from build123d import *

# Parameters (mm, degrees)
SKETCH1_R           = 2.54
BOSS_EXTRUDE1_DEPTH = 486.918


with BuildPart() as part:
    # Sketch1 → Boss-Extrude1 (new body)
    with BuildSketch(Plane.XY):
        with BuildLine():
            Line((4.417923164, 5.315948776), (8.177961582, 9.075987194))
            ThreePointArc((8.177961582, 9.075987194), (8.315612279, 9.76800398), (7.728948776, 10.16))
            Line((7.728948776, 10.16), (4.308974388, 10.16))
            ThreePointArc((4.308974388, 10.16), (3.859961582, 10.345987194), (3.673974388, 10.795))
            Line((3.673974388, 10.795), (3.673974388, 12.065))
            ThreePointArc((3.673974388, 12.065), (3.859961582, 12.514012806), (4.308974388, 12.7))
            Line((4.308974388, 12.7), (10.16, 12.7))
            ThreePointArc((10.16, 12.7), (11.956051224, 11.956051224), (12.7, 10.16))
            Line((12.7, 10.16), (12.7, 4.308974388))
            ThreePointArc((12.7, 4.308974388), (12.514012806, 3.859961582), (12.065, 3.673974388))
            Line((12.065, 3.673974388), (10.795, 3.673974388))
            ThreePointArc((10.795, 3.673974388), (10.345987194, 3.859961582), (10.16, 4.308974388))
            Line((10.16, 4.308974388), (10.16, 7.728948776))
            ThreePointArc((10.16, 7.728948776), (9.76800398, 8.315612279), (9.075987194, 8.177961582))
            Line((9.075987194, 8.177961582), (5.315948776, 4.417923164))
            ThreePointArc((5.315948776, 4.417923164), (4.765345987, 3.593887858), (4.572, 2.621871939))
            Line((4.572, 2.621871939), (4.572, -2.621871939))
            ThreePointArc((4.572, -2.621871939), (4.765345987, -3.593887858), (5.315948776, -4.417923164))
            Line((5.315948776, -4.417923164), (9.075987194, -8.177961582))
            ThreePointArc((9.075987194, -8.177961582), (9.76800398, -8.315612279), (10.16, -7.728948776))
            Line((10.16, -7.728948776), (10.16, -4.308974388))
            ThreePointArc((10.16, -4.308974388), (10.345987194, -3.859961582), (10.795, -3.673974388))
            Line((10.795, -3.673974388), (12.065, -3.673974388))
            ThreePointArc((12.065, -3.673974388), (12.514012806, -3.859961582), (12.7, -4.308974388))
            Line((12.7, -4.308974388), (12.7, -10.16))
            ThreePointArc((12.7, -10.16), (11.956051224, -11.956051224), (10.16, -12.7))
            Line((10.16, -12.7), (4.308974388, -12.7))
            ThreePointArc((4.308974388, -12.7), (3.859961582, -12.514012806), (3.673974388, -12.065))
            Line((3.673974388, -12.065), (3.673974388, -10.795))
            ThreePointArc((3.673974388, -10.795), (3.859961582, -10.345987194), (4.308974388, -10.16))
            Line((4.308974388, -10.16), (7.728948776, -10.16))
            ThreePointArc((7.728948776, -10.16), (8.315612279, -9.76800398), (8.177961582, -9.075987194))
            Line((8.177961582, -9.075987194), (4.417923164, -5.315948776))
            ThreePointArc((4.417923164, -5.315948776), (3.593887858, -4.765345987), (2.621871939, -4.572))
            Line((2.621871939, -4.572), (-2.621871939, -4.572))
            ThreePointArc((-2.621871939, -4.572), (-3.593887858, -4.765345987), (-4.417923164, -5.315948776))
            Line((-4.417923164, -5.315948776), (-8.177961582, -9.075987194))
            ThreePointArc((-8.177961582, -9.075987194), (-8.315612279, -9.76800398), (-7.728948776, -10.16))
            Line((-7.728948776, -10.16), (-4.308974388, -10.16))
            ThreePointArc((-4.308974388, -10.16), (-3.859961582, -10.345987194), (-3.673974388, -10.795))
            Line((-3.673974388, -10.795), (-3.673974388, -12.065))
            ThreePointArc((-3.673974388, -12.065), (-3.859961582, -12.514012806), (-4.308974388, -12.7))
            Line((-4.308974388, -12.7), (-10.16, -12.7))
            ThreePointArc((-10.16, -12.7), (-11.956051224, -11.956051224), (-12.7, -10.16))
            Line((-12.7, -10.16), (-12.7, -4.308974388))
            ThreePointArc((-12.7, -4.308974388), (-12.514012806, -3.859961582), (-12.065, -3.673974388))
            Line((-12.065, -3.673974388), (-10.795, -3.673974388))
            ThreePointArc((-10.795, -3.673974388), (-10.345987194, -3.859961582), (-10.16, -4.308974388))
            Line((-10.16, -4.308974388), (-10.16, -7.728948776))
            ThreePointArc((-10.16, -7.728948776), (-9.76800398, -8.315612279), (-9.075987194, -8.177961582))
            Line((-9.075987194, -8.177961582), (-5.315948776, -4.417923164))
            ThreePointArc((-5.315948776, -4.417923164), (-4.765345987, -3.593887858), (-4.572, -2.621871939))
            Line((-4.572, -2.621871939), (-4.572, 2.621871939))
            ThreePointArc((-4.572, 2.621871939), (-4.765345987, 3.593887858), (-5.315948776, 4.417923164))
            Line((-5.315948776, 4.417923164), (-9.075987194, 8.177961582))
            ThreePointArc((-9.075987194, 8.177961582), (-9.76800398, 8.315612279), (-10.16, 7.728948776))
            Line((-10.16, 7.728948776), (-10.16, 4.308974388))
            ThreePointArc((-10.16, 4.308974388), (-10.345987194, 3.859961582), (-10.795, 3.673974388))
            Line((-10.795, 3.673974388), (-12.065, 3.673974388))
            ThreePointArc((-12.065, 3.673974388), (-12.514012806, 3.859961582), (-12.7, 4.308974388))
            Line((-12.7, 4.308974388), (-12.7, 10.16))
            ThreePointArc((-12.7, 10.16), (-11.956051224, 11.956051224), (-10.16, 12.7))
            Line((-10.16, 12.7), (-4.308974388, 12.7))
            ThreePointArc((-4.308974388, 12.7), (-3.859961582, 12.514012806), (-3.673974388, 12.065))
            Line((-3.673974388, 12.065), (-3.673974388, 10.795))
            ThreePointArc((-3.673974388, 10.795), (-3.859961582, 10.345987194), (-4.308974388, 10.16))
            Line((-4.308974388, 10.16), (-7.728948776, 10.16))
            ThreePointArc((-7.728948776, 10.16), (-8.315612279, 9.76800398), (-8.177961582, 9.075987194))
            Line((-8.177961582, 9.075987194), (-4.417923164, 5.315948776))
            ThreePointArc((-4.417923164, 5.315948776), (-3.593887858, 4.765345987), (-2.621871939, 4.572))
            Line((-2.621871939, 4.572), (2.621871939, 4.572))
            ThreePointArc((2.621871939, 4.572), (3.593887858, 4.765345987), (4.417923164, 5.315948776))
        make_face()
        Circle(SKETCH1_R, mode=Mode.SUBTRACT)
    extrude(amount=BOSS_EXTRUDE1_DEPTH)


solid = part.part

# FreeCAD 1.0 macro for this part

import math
import FreeCAD as App
import Part
import Sketcher

V = App.Vector
Q = App.Units.Quantity

doc = App.newDocument("Part")
body = doc.addObject("PartDesign::Body", "Body")

sketch1 = body.newObject("Sketcher::SketchObject", "Sketch")
sketch1.AttachmentSupport = (doc.getObject("XY_Plane"), [""])
sketch1.MapMode = "FlatFace"
sketch1.addGeometry(Part.LineSegment(V(8.2, 9.1, 0), V(4.4, 5.3, 0)), False)
sketch1.addGeometry(Part.ArcOfCircle(Part.Circle(V(2.6, 7.1, 0), V(0, 0, 1), 2.5), math.radians(-90), math.radians(-45)), False)
sketch1.addGeometry(Part.LineSegment(V(2.6, 4.6, 0), V(-2.6, 4.6, 0)), False)
sketch1.addGeometry(Part.ArcOfCircle(Part.Circle(V(-2.6, 7.1, 0), V(0, 0, 1), 2.5), math.radians(-135), math.radians(-90)), False)
sketch1.addGeometry(Part.LineSegment(V(-4.4, 5.3, 0), V(-8.2, 9.1, 0)), False)
sketch1.addGeometry(Part.ArcOfCircle(Part.Circle(V(-7.7, 9.5, 0), V(0, 0, 1), 0.6), math.radians(90), math.radians(225)), False)
sketch1.addGeometry(Part.LineSegment(V(-7.7, 10.2, 0), V(-4.3, 10.2, 0)), False)
sketch1.addGeometry(Part.ArcOfCircle(Part.Circle(V(-4.3, 10.8, 0), V(0, 0, 1), 0.6), math.radians(-90), math.radians(0)), False)
sketch1.addGeometry(Part.LineSegment(V(-3.7, 10.8, 0), V(-3.7, 12.1, 0)), False)
sketch1.addGeometry(Part.ArcOfCircle(Part.Circle(V(-4.3, 12.1, 0), V(0, 0, 1), 0.6), math.radians(0), math.radians(90)), False)
sketch1.addGeometry(Part.LineSegment(V(-4.3, 12.7, 0), V(-10.2, 12.7, 0)), False)
sketch1.addGeometry(Part.ArcOfCircle(Part.Circle(V(-10.2, 10.2, 0), V(0, 0, 1), 2.5), math.radians(90), math.radians(180)), False)
sketch1.addGeometry(Part.LineSegment(V(-12.7, 10.2, 0), V(-12.7, 4.3, 0)), False)
sketch1.addGeometry(Part.ArcOfCircle(Part.Circle(V(-12.1, 4.3, 0), V(0, 0, 1), 0.6), math.radians(180), math.radians(270)), False)
sketch1.addGeometry(Part.LineSegment(V(-12.1, 3.7, 0), V(-10.8, 3.7, 0)), False)
sketch1.addGeometry(Part.ArcOfCircle(Part.Circle(V(-10.8, 4.3, 0), V(0, 0, 1), 0.6), math.radians(-90), math.radians(0)), False)
sketch1.addGeometry(Part.LineSegment(V(-10.2, 4.3, 0), V(-10.2, 7.7, 0)), False)
sketch1.addGeometry(Part.ArcOfCircle(Part.Circle(V(-9.5, 7.7, 0), V(0, 0, 1), 0.6), math.radians(45), math.radians(180)), False)
sketch1.addGeometry(Part.LineSegment(V(-9.1, 8.2, 0), V(-5.3, 4.4, 0)), False)
sketch1.addGeometry(Part.ArcOfCircle(Part.Circle(V(-7.1, 2.6, 0), V(0, 0, 1), 2.5), math.radians(0), math.radians(45)), False)
sketch1.addGeometry(Part.LineSegment(V(-4.6, 2.6, 0), V(-4.6, -2.6, 0)), False)
sketch1.addGeometry(Part.ArcOfCircle(Part.Circle(V(-7.1, -2.6, 0), V(0, 0, 1), 2.5), math.radians(-45), math.radians(0)), False)
sketch1.addGeometry(Part.LineSegment(V(-5.3, -4.4, 0), V(-9.1, -8.2, 0)), False)
sketch1.addGeometry(Part.ArcOfCircle(Part.Circle(V(-9.5, -7.7, 0), V(0, 0, 1), 0.6), math.radians(180), math.radians(315)), False)
sketch1.addGeometry(Part.LineSegment(V(-10.2, -7.7, 0), V(-10.2, -4.3, 0)), False)
sketch1.addGeometry(Part.ArcOfCircle(Part.Circle(V(-10.8, -4.3, 0), V(0, 0, 1), 0.6), math.radians(0), math.radians(90)), False)
sketch1.addGeometry(Part.LineSegment(V(-10.8, -3.7, 0), V(-12.1, -3.7, 0)), False)
sketch1.addGeometry(Part.ArcOfCircle(Part.Circle(V(-12.1, -4.3, 0), V(0, 0, 1), 0.6), math.radians(90), math.radians(180)), False)
sketch1.addGeometry(Part.LineSegment(V(-12.7, -4.3, 0), V(-12.7, -10.2, 0)), False)
sketch1.addGeometry(Part.ArcOfCircle(Part.Circle(V(-10.2, -10.2, 0), V(0, 0, 1), 2.5), math.radians(-180), math.radians(-90)), False)
sketch1.addGeometry(Part.LineSegment(V(-10.2, -12.7, 0), V(-4.3, -12.7, 0)), False)
sketch1.addGeometry(Part.ArcOfCircle(Part.Circle(V(-4.3, -12.1, 0), V(0, 0, 1), 0.6), math.radians(-90), math.radians(0)), False)
sketch1.addGeometry(Part.LineSegment(V(-3.7, -12.1, 0), V(-3.7, -10.8, 0)), False)
sketch1.addGeometry(Part.ArcOfCircle(Part.Circle(V(-4.3, -10.8, 0), V(0, 0, 1), 0.6), math.radians(0), math.radians(90)), False)
sketch1.addGeometry(Part.LineSegment(V(-4.3, -10.2, 0), V(-7.7, -10.2, 0)), False)
sketch1.addGeometry(Part.ArcOfCircle(Part.Circle(V(-7.7, -9.5, 0), V(0, 0, 1), 0.6), math.radians(135), math.radians(270)), False)
sketch1.addGeometry(Part.LineSegment(V(-8.2, -9.1, 0), V(-4.4, -5.3, 0)), False)
sketch1.addGeometry(Part.ArcOfCircle(Part.Circle(V(-2.6, -7.1, 0), V(0, 0, 1), 2.5), math.radians(90), math.radians(135)), False)
sketch1.addGeometry(Part.LineSegment(V(-2.6, -4.6, 0), V(2.6, -4.6, 0)), False)
sketch1.addGeometry(Part.ArcOfCircle(Part.Circle(V(2.6, -7.1, 0), V(0, 0, 1), 2.5), math.radians(45), math.radians(90)), False)
sketch1.addGeometry(Part.LineSegment(V(4.4, -5.3, 0), V(8.2, -9.1, 0)), False)
sketch1.addGeometry(Part.ArcOfCircle(Part.Circle(V(7.7, -9.5, 0), V(0, 0, 1), 0.6), math.radians(-90), math.radians(45)), False)
sketch1.addGeometry(Part.LineSegment(V(7.7, -10.2, 0), V(4.3, -10.2, 0)), False)
sketch1.addGeometry(Part.ArcOfCircle(Part.Circle(V(4.3, -10.8, 0), V(0, 0, 1), 0.6), math.radians(90), math.radians(180)), False)
sketch1.addGeometry(Part.LineSegment(V(3.7, -10.8, 0), V(3.7, -12.1, 0)), False)
sketch1.addGeometry(Part.ArcOfCircle(Part.Circle(V(4.3, -12.1, 0), V(0, 0, 1), 0.6), math.radians(180), math.radians(270)), False)
sketch1.addGeometry(Part.LineSegment(V(4.3, -12.7, 0), V(10.2, -12.7, 0)), False)
sketch1.addGeometry(Part.ArcOfCircle(Part.Circle(V(10.2, -10.2, 0), V(0, 0, 1), 2.5), math.radians(-90), math.radians(0)), False)
sketch1.addGeometry(Part.LineSegment(V(12.7, -10.2, 0), V(12.7, -4.3, 0)), False)
sketch1.addGeometry(Part.ArcOfCircle(Part.Circle(V(12.1, -4.3, 0), V(0, 0, 1), 0.6), math.radians(0), math.radians(90)), False)
sketch1.addGeometry(Part.LineSegment(V(12.1, -3.7, 0), V(10.8, -3.7, 0)), False)
sketch1.addGeometry(Part.ArcOfCircle(Part.Circle(V(10.8, -4.3, 0), V(0, 0, 1), 0.6), math.radians(90), math.radians(180)), False)
sketch1.addGeometry(Part.LineSegment(V(10.2, -4.3, 0), V(10.2, -7.7, 0)), False)
sketch1.addGeometry(Part.ArcOfCircle(Part.Circle(V(9.5, -7.7, 0), V(0, 0, 1), 0.6), math.radians(-135), math.radians(0)), False)
sketch1.addGeometry(Part.LineSegment(V(9.1, -8.2, 0), V(5.3, -4.4, 0)), False)
sketch1.addGeometry(Part.ArcOfCircle(Part.Circle(V(7.1, -2.6, 0), V(0, 0, 1), 2.5), math.radians(180), math.radians(225)), False)
sketch1.addGeometry(Part.LineSegment(V(4.6, -2.6, 0), V(4.6, 2.6, 0)), False)
sketch1.addGeometry(Part.ArcOfCircle(Part.Circle(V(7.1, 2.6, 0), V(0, 0, 1), 2.5), math.radians(135), math.radians(180)), False)
sketch1.addGeometry(Part.LineSegment(V(5.3, 4.4, 0), V(9.1, 8.2, 0)), False)
sketch1.addGeometry(Part.ArcOfCircle(Part.Circle(V(9.5, 7.7, 0), V(0, 0, 1), 0.6), math.radians(0), math.radians(135)), False)
sketch1.addGeometry(Part.LineSegment(V(10.2, 7.7, 0), V(10.2, 4.3, 0)), False)
sketch1.addGeometry(Part.ArcOfCircle(Part.Circle(V(10.8, 4.3, 0), V(0, 0, 1), 0.6), math.radians(180), math.radians(270)), False)
sketch1.addGeometry(Part.LineSegment(V(10.8, 3.7, 0), V(12.1, 3.7, 0)), False)
sketch1.addGeometry(Part.ArcOfCircle(Part.Circle(V(12.1, 4.3, 0), V(0, 0, 1), 0.6), math.radians(-90), math.radians(0)), False)
sketch1.addGeometry(Part.LineSegment(V(12.7, 4.3, 0), V(12.7, 10.2, 0)), False)
sketch1.addGeometry(Part.ArcOfCircle(Part.Circle(V(10.2, 10.2, 0), V(0, 0, 1), 2.5), math.radians(0), math.radians(90)), False)
sketch1.addGeometry(Part.LineSegment(V(10.2, 12.7, 0), V(4.3, 12.7, 0)), False)
sketch1.addGeometry(Part.ArcOfCircle(Part.Circle(V(4.3, 12.1, 0), V(0, 0, 1), 0.6), math.radians(90), math.radians(180)), False)
sketch1.addGeometry(Part.LineSegment(V(3.7, 12.1, 0), V(3.7, 10.8, 0)), False)
sketch1.addGeometry(Part.ArcOfCircle(Part.Circle(V(4.3, 10.8, 0), V(0, 0, 1), 0.6), math.radians(180), math.radians(270)), False)
sketch1.addGeometry(Part.LineSegment(V(4.3, 10.2, 0), V(7.7, 10.2, 0)), False)
sketch1.addGeometry(Part.ArcOfCircle(Part.Circle(V(7.7, 9.5, 0), V(0, 0, 1), 0.6), math.radians(-45), math.radians(90)), False)
sketch1.addGeometry(Part.Circle(V(0, 0, 0), V(0, 0, 1), 2.5), False)
sketch1.addConstraint(Sketcher.Constraint("Tangent", 0, 2, 1, 2))
sketch1.addConstraint(Sketcher.Constraint("Tangent", 1, 1, 2, 1))
sketch1.addConstraint(Sketcher.Constraint("Tangent", 2, 2, 3, 2))
sketch1.addConstraint(Sketcher.Constraint("Tangent", 3, 1, 4, 1))
sketch1.addConstraint(Sketcher.Constraint("Tangent", 4, 2, 5, 2))
sketch1.addConstraint(Sketcher.Constraint("Tangent", 5, 1, 6, 1))
sketch1.addConstraint(Sketcher.Constraint("Tangent", 6, 2, 7, 1))
sketch1.addConstraint(Sketcher.Constraint("Tangent", 7, 2, 8, 1))
sketch1.addConstraint(Sketcher.Constraint("Tangent", 8, 2, 9, 1))
sketch1.addConstraint(Sketcher.Constraint("Tangent", 9, 2, 10, 1))
sketch1.addConstraint(Sketcher.Constraint("Tangent", 10, 2, 11, 1))
sketch1.addConstraint(Sketcher.Constraint("Tangent", 11, 2, 12, 1))
sketch1.addConstraint(Sketcher.Constraint("Tangent", 12, 2, 13, 1))
sketch1.addConstraint(Sketcher.Constraint("Tangent", 13, 2, 14, 1))
sketch1.addConstraint(Sketcher.Constraint("Tangent", 14, 2, 15, 1))
sketch1.addConstraint(Sketcher.Constraint("Tangent", 15, 2, 16, 1))
sketch1.addConstraint(Sketcher.Constraint("Tangent", 16, 2, 17, 2))
sketch1.addConstraint(Sketcher.Constraint("Tangent", 17, 1, 18, 1))
sketch1.addConstraint(Sketcher.Constraint("Tangent", 18, 2, 19, 2))
sketch1.addConstraint(Sketcher.Constraint("Tangent", 19, 1, 20, 1))
sketch1.addConstraint(Sketcher.Constraint("Tangent", 20, 2, 21, 2))
sketch1.addConstraint(Sketcher.Constraint("Tangent", 21, 1, 22, 1))
sketch1.addConstraint(Sketcher.Constraint("Tangent", 22, 2, 23, 2))
sketch1.addConstraint(Sketcher.Constraint("Tangent", 23, 1, 24, 1))
sketch1.addConstraint(Sketcher.Constraint("Tangent", 24, 2, 25, 1))
sketch1.addConstraint(Sketcher.Constraint("Tangent", 25, 2, 26, 1))
sketch1.addConstraint(Sketcher.Constraint("Tangent", 26, 2, 27, 1))
sketch1.addConstraint(Sketcher.Constraint("Tangent", 27, 2, 28, 1))
sketch1.addConstraint(Sketcher.Constraint("Tangent", 28, 2, 29, 1))
sketch1.addConstraint(Sketcher.Constraint("Tangent", 29, 2, 30, 1))
sketch1.addConstraint(Sketcher.Constraint("Tangent", 30, 2, 31, 1))
sketch1.addConstraint(Sketcher.Constraint("Tangent", 31, 2, 32, 1))
sketch1.addConstraint(Sketcher.Constraint("Tangent", 32, 2, 33, 1))
sketch1.addConstraint(Sketcher.Constraint("Tangent", 33, 2, 34, 1))
sketch1.addConstraint(Sketcher.Constraint("Tangent", 34, 2, 35, 2))
sketch1.addConstraint(Sketcher.Constraint("Tangent", 35, 1, 36, 1))
sketch1.addConstraint(Sketcher.Constraint("Tangent", 36, 2, 37, 2))
sketch1.addConstraint(Sketcher.Constraint("Tangent", 37, 1, 38, 1))
sketch1.addConstraint(Sketcher.Constraint("Tangent", 38, 2, 39, 2))
sketch1.addConstraint(Sketcher.Constraint("Tangent", 39, 1, 40, 1))
sketch1.addConstraint(Sketcher.Constraint("Tangent", 40, 2, 41, 2))
sketch1.addConstraint(Sketcher.Constraint("Tangent", 41, 1, 42, 1))
sketch1.addConstraint(Sketcher.Constraint("Tangent", 42, 2, 43, 1))
sketch1.addConstraint(Sketcher.Constraint("Tangent", 43, 2, 44, 1))
sketch1.addConstraint(Sketcher.Constraint("Tangent", 44, 2, 45, 1))
sketch1.addConstraint(Sketcher.Constraint("Tangent", 45, 2, 46, 1))
sketch1.addConstraint(Sketcher.Constraint("Tangent", 46, 2, 47, 1))
sketch1.addConstraint(Sketcher.Constraint("Tangent", 47, 2, 48, 1))
sketch1.addConstraint(Sketcher.Constraint("Tangent", 48, 2, 49, 1))
sketch1.addConstraint(Sketcher.Constraint("Tangent", 49, 2, 50, 1))
sketch1.addConstraint(Sketcher.Constraint("Tangent", 50, 2, 51, 1))
sketch1.addConstraint(Sketcher.Constraint("Tangent", 51, 2, 52, 1))
sketch1.addConstraint(Sketcher.Constraint("Tangent", 52, 2, 53, 2))
sketch1.addConstraint(Sketcher.Constraint("Tangent", 53, 1, 54, 1))
sketch1.addConstraint(Sketcher.Constraint("Tangent", 54, 2, 55, 2))
sketch1.addConstraint(Sketcher.Constraint("Tangent", 55, 1, 56, 1))
sketch1.addConstraint(Sketcher.Constraint("Tangent", 56, 2, 57, 2))
sketch1.addConstraint(Sketcher.Constraint("Tangent", 57, 1, 58, 1))
sketch1.addConstraint(Sketcher.Constraint("Tangent", 58, 2, 59, 2))
sketch1.addConstraint(Sketcher.Constraint("Tangent", 59, 1, 60, 1))
sketch1.addConstraint(Sketcher.Constraint("Tangent", 60, 2, 61, 1))
sketch1.addConstraint(Sketcher.Constraint("Tangent", 61, 2, 62, 1))
sketch1.addConstraint(Sketcher.Constraint("Tangent", 62, 2, 63, 1))
sketch1.addConstraint(Sketcher.Constraint("Tangent", 63, 2, 64, 1))
sketch1.addConstraint(Sketcher.Constraint("Tangent", 64, 2, 65, 1))
sketch1.addConstraint(Sketcher.Constraint("Tangent", 65, 2, 66, 1))
sketch1.addConstraint(Sketcher.Constraint("Tangent", 66, 2, 67, 1))
sketch1.addConstraint(Sketcher.Constraint("Tangent", 67, 2, 68, 1))
sketch1.addConstraint(Sketcher.Constraint("Tangent", 68, 2, 69, 1))
sketch1.addConstraint(Sketcher.Constraint("Tangent", 69, 2, 70, 1))
sketch1.addConstraint(Sketcher.Constraint("Tangent", 70, 2, 71, 2))
sketch1.addConstraint(Sketcher.Constraint("Tangent", 71, 1, 0, 1))
sketch1.addConstraint(Sketcher.Constraint("Horizontal", 2))
sketch1.addConstraint(Sketcher.Constraint("Horizontal", 6))
sketch1.addConstraint(Sketcher.Constraint("Vertical", 8))
sketch1.addConstraint(Sketcher.Constraint("Horizontal", 10))
sketch1.addConstraint(Sketcher.Constraint("Vertical", 12))
sketch1.addConstraint(Sketcher.Constraint("Horizontal", 14))
sketch1.addConstraint(Sketcher.Constraint("Vertical", 16))
sketch1.addConstraint(Sketcher.Constraint("Vertical", 20))
sketch1.addConstraint(Sketcher.Constraint("Vertical", 24))
sketch1.addConstraint(Sketcher.Constraint("Horizontal", 26))
sketch1.addConstraint(Sketcher.Constraint("Vertical", 28))
sketch1.addConstraint(Sketcher.Constraint("Horizontal", 30))
sketch1.addConstraint(Sketcher.Constraint("Vertical", 32))
sketch1.addConstraint(Sketcher.Constraint("Horizontal", 34))
sketch1.addConstraint(Sketcher.Constraint("Horizontal", 38))
sketch1.addConstraint(Sketcher.Constraint("Horizontal", 42))
sketch1.addConstraint(Sketcher.Constraint("Vertical", 44))
sketch1.addConstraint(Sketcher.Constraint("Horizontal", 46))
sketch1.addConstraint(Sketcher.Constraint("Vertical", 48))
sketch1.addConstraint(Sketcher.Constraint("Horizontal", 50))
sketch1.addConstraint(Sketcher.Constraint("Vertical", 52))
sketch1.addConstraint(Sketcher.Constraint("Vertical", 56))
sketch1.addConstraint(Sketcher.Constraint("Vertical", 60))
sketch1.addConstraint(Sketcher.Constraint("Horizontal", 62))
sketch1.addConstraint(Sketcher.Constraint("Vertical", 64))
sketch1.addConstraint(Sketcher.Constraint("Horizontal", 66))
sketch1.addConstraint(Sketcher.Constraint("Vertical", 68))
sketch1.addConstraint(Sketcher.Constraint("Horizontal", 70))
sketch1.addConstraint(Sketcher.Constraint("Coincident", 72, 3, -1, 1))
sketch1.addConstraint(Sketcher.Constraint("Equal", 1, 3))
sketch1.addConstraint(Sketcher.Constraint("Equal", 5, 7))
sketch1.addConstraint(Sketcher.Constraint("Equal", 7, 9))
sketch1.addConstraint(Sketcher.Constraint("Equal", 3, 11))
sketch1.addConstraint(Sketcher.Constraint("Equal", 9, 13))
sketch1.addConstraint(Sketcher.Constraint("Equal", 13, 15))
sketch1.addConstraint(Sketcher.Constraint("Equal", 15, 17))
sketch1.addConstraint(Sketcher.Constraint("Equal", 11, 19))
sketch1.addConstraint(Sketcher.Constraint("Equal", 19, 21))
sketch1.addConstraint(Sketcher.Constraint("Equal", 17, 23))
sketch1.addConstraint(Sketcher.Constraint("Equal", 23, 25))
sketch1.addConstraint(Sketcher.Constraint("Equal", 25, 27))
sketch1.addConstraint(Sketcher.Constraint("Equal", 21, 29))
sketch1.addConstraint(Sketcher.Constraint("Equal", 27, 31))
sketch1.addConstraint(Sketcher.Constraint("Equal", 31, 33))
sketch1.addConstraint(Sketcher.Constraint("Equal", 33, 35))
sketch1.addConstraint(Sketcher.Constraint("Equal", 29, 37))
sketch1.addConstraint(Sketcher.Constraint("Equal", 37, 39))
sketch1.addConstraint(Sketcher.Constraint("Equal", 35, 41))
sketch1.addConstraint(Sketcher.Constraint("Equal", 41, 43))
sketch1.addConstraint(Sketcher.Constraint("Equal", 43, 45))
sketch1.addConstraint(Sketcher.Constraint("Equal", 39, 47))
sketch1.addConstraint(Sketcher.Constraint("Equal", 45, 49))
sketch1.addConstraint(Sketcher.Constraint("Equal", 49, 51))
sketch1.addConstraint(Sketcher.Constraint("Equal", 51, 53))
sketch1.addConstraint(Sketcher.Constraint("Equal", 47, 55))
sketch1.addConstraint(Sketcher.Constraint("Equal", 55, 57))
sketch1.addConstraint(Sketcher.Constraint("Equal", 53, 59))
sketch1.addConstraint(Sketcher.Constraint("Equal", 59, 61))
sketch1.addConstraint(Sketcher.Constraint("Equal", 61, 63))
sketch1.addConstraint(Sketcher.Constraint("Equal", 57, 65))
sketch1.addConstraint(Sketcher.Constraint("Equal", 63, 67))
sketch1.addConstraint(Sketcher.Constraint("Equal", 67, 69))
sketch1.addConstraint(Sketcher.Constraint("Equal", 69, 71))
sketch1.addConstraint(Sketcher.Constraint("Equal", 65, 72))
sketch1.addConstraint(Sketcher.Constraint("Symmetric", 1, 3, 37, 3, -1, 1))
sketch1.addConstraint(Sketcher.Constraint("Symmetric", 5, 3, 41, 3, -1, 1))
sketch1.addConstraint(Sketcher.Constraint("Symmetric", 9, 3, 45, 3, -1, 1))
sketch1.addConstraint(Sketcher.Constraint("Symmetric", 13, 3, 49, 3, -1, 1))
sketch1.addConstraint(Sketcher.Constraint("Symmetric", 17, 3, 53, 3, -1, 1))
sketch1.addConstraint(Sketcher.Constraint("Symmetric", 19, 3, 55, 3, -1, 1))
sketch1.addConstraint(Sketcher.Constraint("Symmetric", 23, 3, 59, 3, -1, 1))
sketch1.addConstraint(Sketcher.Constraint("Symmetric", 27, 3, 63, 3, -1, 1))
sketch1.addConstraint(Sketcher.Constraint("Symmetric", 31, 3, 67, 3, -1, 1))
sketch1.addConstraint(Sketcher.Constraint("Symmetric", 35, 3, 71, 3, -1, 1))
sketch1.addConstraint(Sketcher.Constraint("Symmetric", 35, 3, 41, 3, -2))
sketch1.addConstraint(Sketcher.Constraint("Symmetric", 31, 3, 45, 3, -2))
sketch1.addConstraint(Sketcher.Constraint("Symmetric", 27, 3, 49, 3, -2))
sketch1.addConstraint(Sketcher.Constraint("Symmetric", 23, 3, 53, 3, -2))
sketch1.addConstraint(Sketcher.Constraint("Perpendicular", 0, 4))
sketch1.addConstraint(Sketcher.Constraint("Parallel", 4, 18))
sketch1.addConstraint(Sketcher.Constraint("Perpendicular", 18, 22))
sketch1.addConstraint(Sketcher.Constraint("Perpendicular", 36, 40))
sketch1.addConstraint(Sketcher.Constraint("Perpendicular", 54, 58))
sketch1.addConstraint(Sketcher.Constraint("Horizontal", 21, 3, 55, 3))
sketch1.addConstraint(Sketcher.Constraint("Horizontal", 65, 3, 5, 1))
sketch1.addConstraint(Sketcher.Constraint("Vertical", 10, 2, 15, 2))
sketch1.addConstraint(Sketcher.Constraint("Equal", 66, 12))
sketch1.addConstraint(Sketcher.Constraint("Equal", 70, 16))
sketch1.addConstraint(Sketcher.Constraint("Equal", 38, 20))
sketch1.addConstraint(Sketcher.Constraint("Equal", 4, 18))
sketch1.addConstraint(Sketcher.Constraint("Diameter", 72, Q("0.2 in")))
sketch1.addConstraint(Sketcher.Constraint("Radius", 5, Q("0.025 in")))
sketch1.addConstraint(Sketcher.Constraint("DistanceX", 11, 3, -1, 1, Q("0.4 in")))
sketch1.addConstraint(Sketcher.Constraint("DistanceY", -1, 1, 1, 3, Q("0.28 in")))
sketch1.addConstraint(Sketcher.Constraint("DistanceX", 2, 2, 2, 1, Q("5.243744 mm")))
sketch1.addConstraint(Sketcher.Constraint("DistanceX", 6, 1, 6, 2, Q("3.419974 mm")))
pad1 = body.newObject("PartDesign::Pad", "Pad")
pad1.Profile = sketch1
pad1.Length = Q("19.17 in")

doc.recompute()
